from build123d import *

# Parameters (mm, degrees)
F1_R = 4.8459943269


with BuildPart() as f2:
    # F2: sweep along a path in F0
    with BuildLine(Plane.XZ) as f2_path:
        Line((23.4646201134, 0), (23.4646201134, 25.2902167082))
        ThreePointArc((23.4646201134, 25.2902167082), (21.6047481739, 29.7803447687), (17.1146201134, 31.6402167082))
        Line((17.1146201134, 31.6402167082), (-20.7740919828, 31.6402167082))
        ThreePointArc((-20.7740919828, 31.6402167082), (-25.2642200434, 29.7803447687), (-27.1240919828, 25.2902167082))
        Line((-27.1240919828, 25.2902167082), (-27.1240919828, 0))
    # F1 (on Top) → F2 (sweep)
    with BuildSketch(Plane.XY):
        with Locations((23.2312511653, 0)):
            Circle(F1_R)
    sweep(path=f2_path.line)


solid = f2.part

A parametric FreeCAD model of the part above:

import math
import FreeCAD as App
import Part
import Sketcher
Q = App.Units.Quantity

doc = App.newDocument("Part")
body = doc.addObject("PartDesign::Body", "Body")

sketch1 = doc.addObject("Sketcher::SketchObject", "Sketch")
body.addObject(sketch1)
sketch1.AttachmentSupport = (doc.XY_Plane, [""])
sketch1.MapMode = "FlatFace"
sketch1.addGeometry(Part.Circle(App.Vector(23.231251, 0, 0), App.Vector(0, 0, 1), 4.845994), False)
sketch1.addConstraint([
    Sketcher.Constraint("PointOnObject", 0, 3, -1),
    Sketcher.Constraint("Diameter", 0, Q("9.691989 mm")),
    Sketcher.Constraint("DistanceX", -1, 1, 0, 3, Q("23.231251 mm")),
])

sketch2 = doc.addObject("Sketcher::SketchObject", "Sketch001")
body.addObject(sketch2)
sketch2.AttachmentSupport = (doc.XZ_Plane, [""])
sketch2.MapMode = "FlatFace"
sketch2.addGeometry([
    Part.LineSegment(App.Vector(23.46462, 0, 0), App.Vector(23.46462, 25.290217, 0)),
    Part.ArcOfCircle(Part.Circle(App.Vector(17.11462, 25.290217, 0), App.Vector(0, 0, 1), 6.35), math.radians(0), math.radians(90)),
    Part.LineSegment(App.Vector(17.11462, 31.640217, 0), App.Vector(-20.774092, 31.640217, 0)),
    Part.ArcOfCircle(Part.Circle(App.Vector(-20.774092, 25.290217, 0), App.Vector(0, 0, 1), 6.35), math.radians(90), math.radians(180)),
    Part.LineSegment(App.Vector(-27.124092, 25.290217, 0), App.Vector(-27.124092, 0, 0)),
], False)
sketch2.addConstraint([
    Sketcher.Constraint("Tangent", 0, 2, 1, 1),
    Sketcher.Constraint("Tangent", 1, 2, 2, 1),
    Sketcher.Constraint("Tangent", 2, 2, 3, 1),
    Sketcher.Constraint("Tangent", 3, 2, 4, 1),
    Sketcher.Constraint("Vertical", 0),
    Sketcher.Constraint("Horizontal", 2),
    Sketcher.Constraint("Vertical", 4),
    Sketcher.Constraint("Equal", 1, 3),
    Sketcher.Constraint("PointOnObject", 0, 1, -1),
    Sketcher.Constraint("PointOnObject", 4, 2, -1),
    Sketcher.Constraint("Radius", 1, Q("0.25 in")),
    Sketcher.Constraint("DistanceX", 2, 2, 2, 1, Q("37.888712 mm")),
    Sketcher.Constraint("DistanceY", 0, 1, 0, 2, Q("25.290217 mm")),
    Sketcher.Constraint("DistanceX", -1, 1, 1, 3, Q("17.11462 mm")),
])
doc.recompute()

additivepipe = doc.addObject("PartDesign::AdditivePipe", "AdditivePipe")
body.addObject(additivepipe)
additivepipe.Profile = sketch1
additivepipe.Spine = (sketch2, ["Edge1", "Edge2", "Edge3", "Edge4", "Edge5"])

doc.recompute()
